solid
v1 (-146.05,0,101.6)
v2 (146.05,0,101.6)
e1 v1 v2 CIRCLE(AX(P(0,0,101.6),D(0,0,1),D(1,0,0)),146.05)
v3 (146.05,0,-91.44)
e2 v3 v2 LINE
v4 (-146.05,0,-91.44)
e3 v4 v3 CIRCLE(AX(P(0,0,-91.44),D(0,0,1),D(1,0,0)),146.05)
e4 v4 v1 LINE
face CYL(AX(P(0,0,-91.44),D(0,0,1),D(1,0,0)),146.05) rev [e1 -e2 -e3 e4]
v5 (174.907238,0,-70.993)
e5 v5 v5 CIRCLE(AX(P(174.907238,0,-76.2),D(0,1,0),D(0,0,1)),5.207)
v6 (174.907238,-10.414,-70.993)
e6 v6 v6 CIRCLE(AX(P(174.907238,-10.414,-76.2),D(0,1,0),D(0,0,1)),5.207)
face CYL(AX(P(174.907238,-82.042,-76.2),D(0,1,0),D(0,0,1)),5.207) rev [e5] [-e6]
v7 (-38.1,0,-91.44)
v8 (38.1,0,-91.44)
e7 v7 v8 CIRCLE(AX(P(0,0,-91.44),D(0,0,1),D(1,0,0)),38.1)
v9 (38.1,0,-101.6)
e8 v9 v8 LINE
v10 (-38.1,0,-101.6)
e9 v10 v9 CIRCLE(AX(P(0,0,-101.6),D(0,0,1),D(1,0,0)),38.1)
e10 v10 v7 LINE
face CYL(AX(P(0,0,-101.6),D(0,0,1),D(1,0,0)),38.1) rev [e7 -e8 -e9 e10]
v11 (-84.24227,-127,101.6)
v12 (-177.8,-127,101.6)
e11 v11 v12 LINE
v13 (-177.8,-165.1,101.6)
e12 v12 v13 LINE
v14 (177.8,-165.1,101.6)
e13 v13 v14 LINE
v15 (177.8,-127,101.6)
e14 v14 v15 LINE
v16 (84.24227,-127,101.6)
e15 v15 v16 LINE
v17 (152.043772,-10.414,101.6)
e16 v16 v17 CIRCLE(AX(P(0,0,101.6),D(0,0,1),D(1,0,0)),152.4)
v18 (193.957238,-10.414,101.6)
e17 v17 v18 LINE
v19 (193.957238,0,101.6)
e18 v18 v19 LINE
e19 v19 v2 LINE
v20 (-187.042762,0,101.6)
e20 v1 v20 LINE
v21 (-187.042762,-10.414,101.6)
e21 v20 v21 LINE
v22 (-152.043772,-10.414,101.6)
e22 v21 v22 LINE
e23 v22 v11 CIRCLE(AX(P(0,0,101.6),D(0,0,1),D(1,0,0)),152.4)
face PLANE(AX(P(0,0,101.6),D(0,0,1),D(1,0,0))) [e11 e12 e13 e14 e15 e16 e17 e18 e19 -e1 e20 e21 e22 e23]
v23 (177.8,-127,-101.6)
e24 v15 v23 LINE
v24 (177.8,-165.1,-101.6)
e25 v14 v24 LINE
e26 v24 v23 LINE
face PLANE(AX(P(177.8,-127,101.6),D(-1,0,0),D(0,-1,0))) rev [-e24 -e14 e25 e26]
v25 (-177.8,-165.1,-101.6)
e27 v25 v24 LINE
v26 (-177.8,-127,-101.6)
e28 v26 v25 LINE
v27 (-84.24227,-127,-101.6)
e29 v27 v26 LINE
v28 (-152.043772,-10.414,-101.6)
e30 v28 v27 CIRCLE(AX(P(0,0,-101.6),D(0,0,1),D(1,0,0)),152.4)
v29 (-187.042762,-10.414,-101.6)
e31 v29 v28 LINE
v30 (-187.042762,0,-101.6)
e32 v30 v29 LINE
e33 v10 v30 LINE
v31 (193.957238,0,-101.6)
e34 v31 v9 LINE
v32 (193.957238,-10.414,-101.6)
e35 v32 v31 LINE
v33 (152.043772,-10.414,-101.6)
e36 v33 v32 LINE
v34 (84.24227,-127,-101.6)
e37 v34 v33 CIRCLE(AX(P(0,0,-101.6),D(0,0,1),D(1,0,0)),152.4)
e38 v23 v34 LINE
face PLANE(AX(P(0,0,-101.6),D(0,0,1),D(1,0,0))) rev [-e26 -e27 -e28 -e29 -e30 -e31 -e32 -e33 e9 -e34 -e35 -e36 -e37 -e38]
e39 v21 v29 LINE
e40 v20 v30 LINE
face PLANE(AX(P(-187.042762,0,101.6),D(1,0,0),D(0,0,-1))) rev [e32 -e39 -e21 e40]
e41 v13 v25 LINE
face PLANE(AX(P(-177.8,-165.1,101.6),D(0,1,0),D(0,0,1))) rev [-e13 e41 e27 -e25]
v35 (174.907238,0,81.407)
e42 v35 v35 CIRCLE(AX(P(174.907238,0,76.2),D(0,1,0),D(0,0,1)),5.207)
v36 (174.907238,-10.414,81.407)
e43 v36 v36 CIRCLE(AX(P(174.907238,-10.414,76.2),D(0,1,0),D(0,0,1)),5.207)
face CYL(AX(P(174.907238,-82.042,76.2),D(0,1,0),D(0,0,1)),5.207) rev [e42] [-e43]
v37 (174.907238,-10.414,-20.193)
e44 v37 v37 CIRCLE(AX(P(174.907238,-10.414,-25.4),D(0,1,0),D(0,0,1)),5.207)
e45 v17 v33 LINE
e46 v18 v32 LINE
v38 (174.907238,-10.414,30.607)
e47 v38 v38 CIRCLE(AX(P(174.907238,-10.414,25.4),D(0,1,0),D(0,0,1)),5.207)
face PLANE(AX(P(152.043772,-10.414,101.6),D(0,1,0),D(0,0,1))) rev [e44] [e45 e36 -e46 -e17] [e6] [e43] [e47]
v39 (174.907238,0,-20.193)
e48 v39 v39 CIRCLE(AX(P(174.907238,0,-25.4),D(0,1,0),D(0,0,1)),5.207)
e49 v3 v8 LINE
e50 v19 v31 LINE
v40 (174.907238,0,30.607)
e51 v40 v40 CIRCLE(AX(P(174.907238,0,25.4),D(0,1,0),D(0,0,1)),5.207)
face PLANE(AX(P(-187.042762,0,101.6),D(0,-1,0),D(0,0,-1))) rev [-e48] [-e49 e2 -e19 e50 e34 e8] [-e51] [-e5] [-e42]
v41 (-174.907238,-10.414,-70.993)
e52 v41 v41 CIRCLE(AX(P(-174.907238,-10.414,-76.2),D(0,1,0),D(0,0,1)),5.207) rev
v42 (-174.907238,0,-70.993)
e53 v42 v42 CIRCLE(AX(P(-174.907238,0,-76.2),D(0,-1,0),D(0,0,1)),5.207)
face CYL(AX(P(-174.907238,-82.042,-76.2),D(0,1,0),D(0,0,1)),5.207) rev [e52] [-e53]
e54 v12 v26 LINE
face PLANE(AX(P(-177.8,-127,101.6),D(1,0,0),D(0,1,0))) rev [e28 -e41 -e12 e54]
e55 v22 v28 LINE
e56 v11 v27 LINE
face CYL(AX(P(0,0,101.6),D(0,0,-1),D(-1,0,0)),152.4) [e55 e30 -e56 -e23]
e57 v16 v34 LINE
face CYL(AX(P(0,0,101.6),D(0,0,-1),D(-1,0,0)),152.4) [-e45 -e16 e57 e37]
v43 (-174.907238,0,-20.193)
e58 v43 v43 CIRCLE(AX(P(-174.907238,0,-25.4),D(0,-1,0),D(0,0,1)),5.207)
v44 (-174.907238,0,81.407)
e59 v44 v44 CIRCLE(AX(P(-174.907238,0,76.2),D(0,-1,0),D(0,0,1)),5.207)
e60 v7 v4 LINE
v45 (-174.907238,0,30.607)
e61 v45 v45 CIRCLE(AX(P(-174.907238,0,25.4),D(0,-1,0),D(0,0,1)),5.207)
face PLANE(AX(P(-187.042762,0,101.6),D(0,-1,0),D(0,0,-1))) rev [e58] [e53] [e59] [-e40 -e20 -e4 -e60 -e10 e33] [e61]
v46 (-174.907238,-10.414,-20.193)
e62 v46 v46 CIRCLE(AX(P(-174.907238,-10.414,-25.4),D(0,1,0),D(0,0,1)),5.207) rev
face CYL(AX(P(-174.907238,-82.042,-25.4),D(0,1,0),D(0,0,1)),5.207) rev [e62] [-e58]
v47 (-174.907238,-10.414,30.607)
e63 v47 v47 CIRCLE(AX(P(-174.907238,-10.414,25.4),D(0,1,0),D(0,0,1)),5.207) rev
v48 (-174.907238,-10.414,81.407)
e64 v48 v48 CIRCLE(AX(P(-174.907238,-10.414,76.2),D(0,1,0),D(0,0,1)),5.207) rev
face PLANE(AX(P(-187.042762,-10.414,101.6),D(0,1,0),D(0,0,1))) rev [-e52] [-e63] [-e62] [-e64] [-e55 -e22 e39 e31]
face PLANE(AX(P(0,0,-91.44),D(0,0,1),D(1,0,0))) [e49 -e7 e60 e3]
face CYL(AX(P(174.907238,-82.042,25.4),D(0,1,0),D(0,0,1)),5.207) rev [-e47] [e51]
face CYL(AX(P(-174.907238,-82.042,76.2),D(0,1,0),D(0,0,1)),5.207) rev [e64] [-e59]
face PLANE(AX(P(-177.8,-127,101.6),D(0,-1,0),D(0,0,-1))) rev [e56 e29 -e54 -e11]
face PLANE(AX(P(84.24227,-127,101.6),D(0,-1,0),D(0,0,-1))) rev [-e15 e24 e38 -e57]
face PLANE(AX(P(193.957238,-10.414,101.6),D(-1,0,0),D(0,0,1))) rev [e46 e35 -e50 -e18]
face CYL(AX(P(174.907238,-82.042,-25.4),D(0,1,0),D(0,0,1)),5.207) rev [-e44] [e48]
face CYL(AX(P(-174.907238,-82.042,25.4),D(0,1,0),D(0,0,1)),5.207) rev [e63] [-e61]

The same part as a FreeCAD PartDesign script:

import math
import FreeCAD as App
import Part
import Sketcher

V = App.Vector
Q = App.Units.Quantity

doc = App.newDocument("Part")
params = doc.addObject("Spreadsheet::Sheet", "Params")
for row, (alias, value) in enumerate([
    ("sketch1_radius", "6 in"),
    ("sketch1_width", "15 in"),
    ("sketch1_width2", "14 in"),
    ("sketch1_height", "1.5 in"),
    ("sketch1_height2", "0.41 in"),
    ("pad1_length", "8 in"),
    ("sketch2_radius", "5.75 in"),
    ("pocket1_length", "7.6 in"),
    ("sketch3_radius", "1.5 in"),
    ("sketch4_diameter", "0.41 in"),
    ("pocket3_length", "3.23 in"),
], start=1):
    params.set(f"A{row}", alias)
    params.set(f"B{row}", "=" + value)
    params.setAlias(f"B{row}", alias)

body = doc.addObject("PartDesign::Body", "Body")

# Sketch on XY plane
sketch1 = body.newObject("Sketcher::SketchObject", "Sketch")
sketch1.AttachmentSupport = (doc.getObject("XY_Plane"), [""])
sketch1.MapMode = "FlatFace"
sketch1.addGeometry(Part.LineSegment(V(194, 0, 0), V(-187, 0, 0)), False)
sketch1.addGeometry(Part.LineSegment(V(-187, 0, 0), V(-187, -10, 0)), False)
sketch1.addGeometry(Part.LineSegment(V(-187, -10, 0), V(-152, -10, 0)), False)
sketch1.addGeometry(Part.ArcOfCircle(Part.Circle(V(0, 0, 0), V(0, 0, 1), 152), math.radians(-176), math.radians(-124)), False)
sketch1.addGeometry(Part.LineSegment(V(-84, -127, 0), V(-178, -127, 0)), False)
sketch1.addGeometry(Part.LineSegment(V(-178, -127, 0), V(-178, -165, 0)), False)
sketch1.addGeometry(Part.LineSegment(V(-178, -165, 0), V(178, -165, 0)), False)
sketch1.addGeometry(Part.LineSegment(V(178, -165, 0), V(178, -127, 0)), False)
sketch1.addGeometry(Part.LineSegment(V(178, -127, 0), V(84, -127, 0)), False)
sketch1.addGeometry(Part.ArcOfCircle(Part.Circle(V(0, 0, 0), V(0, 0, 1), 152), math.radians(-56), math.radians(-4)), False)
sketch1.addGeometry(Part.LineSegment(V(152, -10, 0), V(194, -10, 0)), False)
sketch1.addGeometry(Part.LineSegment(V(194, -10, 0), V(194, 0, 0)), False)
sketch1.addConstraint(Sketcher.Constraint("Coincident", 0, 2, 1, 1))
sketch1.addConstraint(Sketcher.Constraint("Coincident", 1, 2, 2, 1))
sketch1.addConstraint(Sketcher.Constraint("Coincident", 2, 2, 3, 1))
sketch1.addConstraint(Sketcher.Constraint("Coincident", 3, 2, 4, 1))
sketch1.addConstraint(Sketcher.Constraint("Coincident", 4, 2, 5, 1))
sketch1.addConstraint(Sketcher.Constraint("Coincident", 5, 2, 6, 1))
sketch1.addConstraint(Sketcher.Constraint("Coincident", 6, 2, 7, 1))
sketch1.addConstraint(Sketcher.Constraint("Coincident", 7, 2, 8, 1))
sketch1.addConstraint(Sketcher.Constraint("Coincident", 8, 2, 9, 1))
sketch1.addConstraint(Sketcher.Constraint("Coincident", 9, 2, 10, 1))
sketch1.addConstraint(Sketcher.Constraint("Coincident", 10, 2, 11, 1))
sketch1.addConstraint(Sketcher.Constraint("Coincident", 11, 2, 0, 1))
sketch1.addConstraint(Sketcher.Constraint("Horizontal", 0))
sketch1.addConstraint(Sketcher.Constraint("Vertical", 1))
sketch1.addConstraint(Sketcher.Constraint("Horizontal", 2))
sketch1.addConstraint(Sketcher.Constraint("Horizontal", 4))
sketch1.addConstraint(Sketcher.Constraint("Vertical", 5))
sketch1.addConstraint(Sketcher.Constraint("Horizontal", 6))
sketch1.addConstraint(Sketcher.Constraint("Vertical", 7))
sketch1.addConstraint(Sketcher.Constraint("Horizontal", 8))
sketch1.addConstraint(Sketcher.Constraint("Horizontal", 10))
sketch1.addConstraint(Sketcher.Constraint("Vertical", 11))
sketch1.addConstraint(Sketcher.Constraint("Coincident", 3, 3, -1, 1))
sketch1.addConstraint(Sketcher.Constraint("Coincident", 9, 3, -1, 1))
sketch1.addConstraint(Sketcher.Constraint("Equal", 3, 9))
sketch1.addConstraint(Sketcher.Constraint("Symmetric", 4, 2, 7, 2, -2))
sketch1.addConstraint(Sketcher.Constraint("PointOnObject", 0, 2, -1))
sketch1.addConstraint(Sketcher.Constraint("Horizontal", 2, 2, 9, 2))
sketch1.addConstraint(Sketcher.Constraint("Radius", 3, Q("6 in")))
sketch1.addConstraint(Sketcher.Constraint("DistanceX", 0, 2, 0, 1, Q("15 in")))
sketch1.addConstraint(Sketcher.Constraint("DistanceX", 6, 1, 6, 2, Q("14 in")))
sketch1.addConstraint(Sketcher.Constraint("DistanceY", 5, 2, 5, 1, Q("1.5 in")))
sketch1.addConstraint(Sketcher.Constraint("DistanceY", 3, 2, -1, 1, Q("5 in")))
sketch1.addConstraint(Sketcher.Constraint("DistanceY", 1, 2, 1, 1, Q("0.41 in")))
sketch1.addConstraint(Sketcher.Constraint("DistanceX", 2, 1, 2, 2, Q("34.99899 mm")))
sketch1.setExpression("Constraints[28]", "Params.sketch1_radius")
sketch1.setExpression("Constraints[29]", "Params.sketch1_width")
sketch1.setExpression("Constraints[30]", "Params.sketch1_width2")
sketch1.setExpression("Constraints[31]", "Params.sketch1_height")
sketch1.setExpression("Constraints[33]", "Params.sketch1_height2")
pad1 = body.newObject("PartDesign::Pad", "Pad")
pad1.Profile = sketch1
pad1.setExpression("Length", "Params.pad1_length")
pad1.Midplane = True

# Sketch on XY plane
sketch2 = body.newObject("Sketcher::SketchObject", "Sketch001")
sketch2.AttachmentSupport = (doc.getObject("XY_Plane"), [""])
sketch2.MapMode = "FlatFace"
sketch2.AttachmentOffset = App.Placement(V(0, 0, 4 * 25.4), App.Rotation())
sketch2.addGeometry(Part.LineSegment(V(146, 0, 0), V(-146, 0, 0)), False)
sketch2.addGeometry(Part.ArcOfCircle(Part.Circle(V(0, 0, 0), V(0, 0, 1), 146), math.radians(180), math.radians(360)), False)
sketch2.addConstraint(Sketcher.Constraint("Coincident", 0, 1, 1, 2))
sketch2.addConstraint(Sketcher.Constraint("Coincident", 1, 1, 0, 2))
sketch2.addConstraint(Sketcher.Constraint("Horizontal", 0))
sketch2.addConstraint(Sketcher.Constraint("Coincident", 1, 3, -1, 1))
sketch2.addConstraint(Sketcher.Constraint("PointOnObject", 0, 1, -1))
sketch2.addConstraint(Sketcher.Constraint("Radius", 1, Q("5.75 in")))
sketch2.setExpression("Constraints[5]", "Params.sketch2_radius")
pocket1 = body.newObject("PartDesign::Pocket", "Pocket")
pocket1.Profile = sketch2
pocket1.setExpression("Length", "Params.pocket1_length")

# Sketch on XY plane
sketch3 = body.newObject("Sketcher::SketchObject", "Sketch002")
sketch3.AttachmentSupport = (doc.getObject("XY_Plane"), [""])
sketch3.MapMode = "FlatFace"
sketch3.AttachmentOffset = App.Placement(V(0, 0, -3.6 * 25.4), App.Rotation())
sketch3.addGeometry(Part.LineSegment(V(38, 0, 0), V(-38, 0, 0)), False)
sketch3.addGeometry(Part.ArcOfCircle(Part.Circle(V(0, 0, 0), V(0, 0, 1), 38), math.radians(180), math.radians(360)), False)
sketch3.addConstraint(Sketcher.Constraint("Coincident", 0, 1, 1, 2))
sketch3.addConstraint(Sketcher.Constraint("Coincident", 1, 1, 0, 2))
sketch3.addConstraint(Sketcher.Constraint("Horizontal", 0))
sketch3.addConstraint(Sketcher.Constraint("Coincident", 1, 3, -1, 1))
sketch3.addConstraint(Sketcher.Constraint("PointOnObject", 0, 1, -1))
sketch3.addConstraint(Sketcher.Constraint("Radius", 1, Q("1.5 in")))
sketch3.setExpression("Constraints[5]", "Params.sketch3_radius")
pocket2 = body.newObject("PartDesign::Pocket", "Pocket001")
pocket2.Profile = sketch3
pocket2.Type = "ThroughAll"

# Sketch on XZ plane
sketch4 = body.newObject("Sketcher::SketchObject", "Sketch003")
sketch4.AttachmentSupport = (doc.getObject("XZ_Plane"), [""])
sketch4.MapMode = "FlatFace"
sketch4.addGeometry(Part.Circle(V(175, 76, 0), V(0, 0, 1), 5), False)
sketch4.addGeometry(Part.Circle(V(175, 25, 0), V(0, 0, 1), 5), False)
sketch4.addGeometry(Part.Circle(V(175, -25, 0), V(0, 0, 1), 5), False)
sketch4.addGeometry(Part.Circle(V(175, -76, 0), V(0, 0, 1), 5), False)
sketch4.addConstraint(Sketcher.Constraint("Equal", 0, 1))
sketch4.addConstraint(Sketcher.Constraint("Equal", 1, 2))
sketch4.addConstraint(Sketcher.Constraint("Equal", 2, 3))
sketch4.addConstraint(Sketcher.Constraint("Symmetric", 1, 3, 2, 3, -1))
sketch4.addConstraint(Sketcher.Constraint("Symmetric", 0, 3, 3, 3, -1))
sketch4.addConstraint(Sketcher.Constraint("Vertical", 0, 3, 1, 3))
sketch4.addConstraint(Sketcher.Constraint("Diameter", 0, Q("0.41 in")))
sketch4.addConstraint(Sketcher.Constraint("DistanceY", -1, 1, 0, 3, Q("3 in")))
sketch4.addConstraint(Sketcher.Constraint("DistanceY", -1, 1, 1, 3, Q("1 in")))
sketch4.addConstraint(Sketcher.Constraint("DistanceX", -1, 1, 0, 3, Q("174.907238 mm")))
sketch4.setExpression("Constraints[6]", "Params.sketch4_diameter")
pocket3 = body.newObject("PartDesign::Pocket", "Pocket002")
pocket3.Profile = sketch4
pocket3.setExpression("Length", "Params.pocket3_length")
pocket3.Reversed = True
doc.recompute()

mirrored = body.newObject("PartDesign::Mirrored", "Mirrored")
mirrored.Originals = [pocket3]
mirrored.MirrorPlane = (doc.getObject("YZ_Plane"), [""])
body.Tip = mirrored

doc.recompute()
